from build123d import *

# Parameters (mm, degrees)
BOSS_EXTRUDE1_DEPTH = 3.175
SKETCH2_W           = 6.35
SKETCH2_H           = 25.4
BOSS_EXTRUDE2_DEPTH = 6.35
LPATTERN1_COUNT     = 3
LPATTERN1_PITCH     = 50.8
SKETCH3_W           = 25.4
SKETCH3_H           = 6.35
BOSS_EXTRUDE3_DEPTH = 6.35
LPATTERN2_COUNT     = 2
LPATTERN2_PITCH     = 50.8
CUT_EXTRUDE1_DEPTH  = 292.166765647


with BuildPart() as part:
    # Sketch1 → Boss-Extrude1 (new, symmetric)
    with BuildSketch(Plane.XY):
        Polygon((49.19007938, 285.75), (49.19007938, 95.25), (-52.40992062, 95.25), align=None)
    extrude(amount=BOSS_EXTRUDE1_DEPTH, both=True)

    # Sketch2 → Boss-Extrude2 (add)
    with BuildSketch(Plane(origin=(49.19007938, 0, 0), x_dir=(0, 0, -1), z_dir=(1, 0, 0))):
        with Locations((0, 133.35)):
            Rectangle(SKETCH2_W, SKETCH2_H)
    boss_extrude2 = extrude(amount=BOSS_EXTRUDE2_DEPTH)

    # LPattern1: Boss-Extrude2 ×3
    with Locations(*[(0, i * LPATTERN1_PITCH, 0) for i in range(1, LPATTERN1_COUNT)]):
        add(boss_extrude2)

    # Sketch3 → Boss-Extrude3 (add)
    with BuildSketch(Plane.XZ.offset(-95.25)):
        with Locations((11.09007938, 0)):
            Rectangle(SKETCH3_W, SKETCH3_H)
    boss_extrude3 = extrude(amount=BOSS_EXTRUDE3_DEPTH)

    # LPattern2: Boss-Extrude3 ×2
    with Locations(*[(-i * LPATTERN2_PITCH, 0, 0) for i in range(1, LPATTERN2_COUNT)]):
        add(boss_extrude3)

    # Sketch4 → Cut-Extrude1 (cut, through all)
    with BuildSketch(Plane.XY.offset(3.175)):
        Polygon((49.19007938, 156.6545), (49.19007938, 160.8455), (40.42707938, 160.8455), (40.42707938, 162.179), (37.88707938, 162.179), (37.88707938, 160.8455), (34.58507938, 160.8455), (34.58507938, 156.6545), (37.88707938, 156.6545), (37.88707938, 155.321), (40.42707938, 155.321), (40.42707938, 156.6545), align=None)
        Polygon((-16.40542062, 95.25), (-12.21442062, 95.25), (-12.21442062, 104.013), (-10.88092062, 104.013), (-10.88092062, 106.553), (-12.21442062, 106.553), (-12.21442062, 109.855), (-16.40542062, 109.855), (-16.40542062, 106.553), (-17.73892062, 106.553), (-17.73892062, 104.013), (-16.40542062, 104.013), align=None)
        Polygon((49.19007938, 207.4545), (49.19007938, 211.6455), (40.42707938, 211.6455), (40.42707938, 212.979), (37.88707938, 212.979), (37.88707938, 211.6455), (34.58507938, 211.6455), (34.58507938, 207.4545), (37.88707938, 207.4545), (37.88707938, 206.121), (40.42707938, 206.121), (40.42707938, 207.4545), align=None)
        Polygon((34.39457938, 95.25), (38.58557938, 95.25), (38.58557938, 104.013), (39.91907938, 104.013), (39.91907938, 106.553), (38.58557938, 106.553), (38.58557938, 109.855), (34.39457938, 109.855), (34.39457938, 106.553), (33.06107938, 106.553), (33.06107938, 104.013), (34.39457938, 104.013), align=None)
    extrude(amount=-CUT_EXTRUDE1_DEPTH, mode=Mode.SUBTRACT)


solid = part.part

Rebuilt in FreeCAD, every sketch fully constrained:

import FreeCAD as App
import Part
import Sketcher
from FreeCAD import Vector
Q = App.Units.Quantity


def add_polygon(sketch, points):
    """Adds a closed chain of lines whose ends are joined by coincident constraints."""
    first, n = sketch.GeometryCount, len(points)
    for a, b in zip(points, points[1:] + points[:1]):
        sketch.addGeometry(Part.LineSegment(App.Vector(*a, 0), App.Vector(*b, 0)), False)
    for i in range(n):
        sketch.addConstraint(Sketcher.Constraint("Coincident", first + i, 2, first + (i + 1) % n, 1))

doc = App.newDocument("Part")
body = doc.addObject("PartDesign::Body", "Body")

# Sketch on XY plane
sketch1 = doc.addObject("Sketcher::SketchObject", "Sketch")
body.addObject(sketch1)
sketch1.AttachmentSupport = (doc.XY_Plane, [""])
sketch1.MapMode = "FlatFace"
add_polygon(sketch1, [(49, 95), (49, 286), (-52, 95)])  # lines 0-2
sketch1.addConstraint(Sketcher.Constraint("Vertical", 0))
sketch1.addConstraint(Sketcher.Constraint("Horizontal", 2))
sketch1.addConstraint(Sketcher.Constraint("DistanceX", 2, 1, 2, 2, Q("4 in")))
sketch1.addConstraint(Sketcher.Constraint("DistanceY", 0, 1, 0, 2, Q("7.5 in")))
sketch1.addConstraint(Sketcher.Constraint("DistanceY", -1, 1, 0, 2, Q("11.25 in")))
sketch1.addConstraint(Sketcher.Constraint("DistanceX", -1, 1, 0, 2, Q("49.190079 mm")))
pad1 = doc.addObject("PartDesign::Pad", "Pad")
body.addObject(pad1)
pad1.Profile = sketch1
pad1.Length = Q("0.25 in")
pad1.Midplane = True

# Sketch on YZ plane
sketch2 = doc.addObject("Sketcher::SketchObject", "Sketch001")
body.addObject(sketch2)
sketch2.AttachmentSupport = (doc.YZ_Plane, [""])
sketch2.MapMode = "FlatFace"
sketch2.AttachmentOffset = App.Placement(Vector(0, 0, 49.190079), App.Rotation())
add_polygon(sketch2, [(146, 3), (121, 3), (121, -3), (146, -3)])  # lines 0-3
sketch2.addConstraint(Sketcher.Constraint("Horizontal", 0))
sketch2.addConstraint(Sketcher.Constraint("Vertical", 1))
sketch2.addConstraint(Sketcher.Constraint("Horizontal", 2))
sketch2.addConstraint(Sketcher.Constraint("Vertical", 3))
sketch2.addConstraint(Sketcher.Constraint("DistanceX", 0, 2, 0, 1, Q("1 in")))
sketch2.addConstraint(Sketcher.Constraint("DistanceY", 1, 2, 1, 1, Q("0.25 in")))
sketch2.addConstraint(Sketcher.Constraint("DistanceX", -1, 1, 0, 2, Q("4.75 in")))
sketch2.addConstraint(Sketcher.Constraint("DistanceY", -1, 1, 0, 2, Q("0.125 in")))
pad2 = doc.addObject("PartDesign::Pad", "Pad001")
body.addObject(pad2)
pad2.Profile = sketch2
pad2.Length = Q("0.25 in")
doc.recompute()

linearpattern = doc.addObject("PartDesign::LinearPattern", "LinearPattern")
body.addObject(linearpattern)
linearpattern.Originals = [pad2]
linearpattern.Direction = (doc.Y_Axis, [""])
linearpattern.Mode = "offset"
linearpattern.Offset = Q("2 in")
linearpattern.Occurrences = 3
body.Tip = linearpattern

# Sketch on XZ plane
sketch3 = doc.addObject("Sketcher::SketchObject", "Sketch002")
body.addObject(sketch3)
sketch3.AttachmentSupport = (doc.XZ_Plane, [""])
sketch3.MapMode = "FlatFace"
sketch3.AttachmentOffset = App.Placement(Vector(0, 0, -3.75 * 25.4), App.Rotation())
add_polygon(sketch3, [(-2, 3), (-2, -3), (24, -3), (24, 3)])  # lines 0-3
sketch3.addConstraint(Sketcher.Constraint("Vertical", 0))
sketch3.addConstraint(Sketcher.Constraint("Horizontal", 1))
sketch3.addConstraint(Sketcher.Constraint("Vertical", 2))
sketch3.addConstraint(Sketcher.Constraint("Horizontal", 3))
sketch3.addConstraint(Sketcher.Constraint("DistanceX", 1, 1, 1, 2, Q("1 in")))
sketch3.addConstraint(Sketcher.Constraint("DistanceY", 0, 2, 0, 1, Q("0.25 in")))
sketch3.addConstraint(Sketcher.Constraint("DistanceY", 0, 2, -1, 1, Q("0.125 in")))
sketch3.addConstraint(Sketcher.Constraint("DistanceX", 0, 2, -1, 1, Q("1.609921 mm")))
pad3 = doc.addObject("PartDesign::Pad", "Pad002")
body.addObject(pad3)
pad3.Profile = sketch3
pad3.Length = Q("0.25 in")
doc.recompute()

linearpattern2 = doc.addObject("PartDesign::LinearPattern", "LinearPattern001")
body.addObject(linearpattern2)
linearpattern2.Originals = [pad3]
linearpattern2.Direction = (doc.X_Axis, [""])
linearpattern2.Mode = "offset"
linearpattern2.Offset = Q("2 in")
linearpattern2.Occurrences = 2
linearpattern2.Reversed = True
body.Tip = linearpattern2

# Sketch on XY plane
sketch4 = doc.addObject("Sketcher::SketchObject", "Sketch003")
body.addObject(sketch4)
sketch4.AttachmentSupport = (doc.XY_Plane, [""])
sketch4.MapMode = "FlatFace"
sketch4.AttachmentOffset = App.Placement(Vector(0, 0, 0.125 * 25.4), App.Rotation())
add_polygon(sketch4, [(49.2, 156.7), (49.2, 160.8), (40.4, 160.8), (40.4, 162.2), (37.9, 162.2), (37.9, 160.8), (34.6, 160.8), (34.6, 156.7), (37.9, 156.7), (37.9, 155.3), (40.4, 155.3), (40.4, 156.7)])  # lines 0-11
add_polygon(sketch4, [(-16.4, 95.2), (-12.2, 95.2), (-12.2, 104), (-10.9, 104), (-10.9, 106.6), (-12.2, 106.6), (-12.2, 109.9), (-16.4, 109.9), (-16.4, 106.6), (-17.7, 106.6), (-17.7, 104), (-16.4, 104)])  # lines 12-23
add_polygon(sketch4, [(49.2, 207.5), (49.2, 211.6), (40.4, 211.6), (40.4, 213), (37.9, 213), (37.9, 211.6), (34.6, 211.6), (34.6, 207.5), (37.9, 207.5), (37.9, 206.1), (40.4, 206.1), (40.4, 207.5)])  # lines 24-35
add_polygon(sketch4, [(34.4, 95.2), (38.6, 95.2), (38.6, 104), (39.9, 104), (39.9, 106.6), (38.6, 106.6), (38.6, 109.9), (34.4, 109.9), (34.4, 106.6), (33.1, 106.6), (33.1, 104), (34.4, 104)])  # lines 36-47
sketch4.addConstraint(Sketcher.Constraint("Vertical", 0))
sketch4.addConstraint(Sketcher.Constraint("Horizontal", 1))
sketch4.addConstraint(Sketcher.Constraint("Vertical", 2))
sketch4.addConstraint(Sketcher.Constraint("Horizontal", 3))
sketch4.addConstraint(Sketcher.Constraint("Vertical", 4))
sketch4.addConstraint(Sketcher.Constraint("Horizontal", 5))
sketch4.addConstraint(Sketcher.Constraint("Vertical", 6))
sketch4.addConstraint(Sketcher.Constraint("Horizontal", 7))
sketch4.addConstraint(Sketcher.Constraint("Vertical", 8))
sketch4.addConstraint(Sketcher.Constraint("Horizontal", 9))
sketch4.addConstraint(Sketcher.Constraint("Vertical", 10))
sketch4.addConstraint(Sketcher.Constraint("Horizontal", 11))
sketch4.addConstraint(Sketcher.Constraint("Horizontal", 12))
sketch4.addConstraint(Sketcher.Constraint("Vertical", 13))
sketch4.addConstraint(Sketcher.Constraint("Horizontal", 14))
sketch4.addConstraint(Sketcher.Constraint("Vertical", 15))
sketch4.addConstraint(Sketcher.Constraint("Horizontal", 16))
sketch4.addConstraint(Sketcher.Constraint("Vertical", 17))
sketch4.addConstraint(Sketcher.Constraint("Horizontal", 18))
sketch4.addConstraint(Sketcher.Constraint("Vertical", 19))
sketch4.addConstraint(Sketcher.Constraint("Horizontal", 20))
sketch4.addConstraint(Sketcher.Constraint("Vertical", 21))
sketch4.addConstraint(Sketcher.Constraint("Horizontal", 22))
sketch4.addConstraint(Sketcher.Constraint("Vertical", 23))
sketch4.addConstraint(Sketcher.Constraint("Vertical", 24))
sketch4.addConstraint(Sketcher.Constraint("Horizontal", 25))
sketch4.addConstraint(Sketcher.Constraint("Vertical", 26))
sketch4.addConstraint(Sketcher.Constraint("Horizontal", 27))
sketch4.addConstraint(Sketcher.Constraint("Vertical", 28))
sketch4.addConstraint(Sketcher.Constraint("Horizontal", 29))
sketch4.addConstraint(Sketcher.Constraint("Vertical", 30))
sketch4.addConstraint(Sketcher.Constraint("Horizontal", 31))
sketch4.addConstraint(Sketcher.Constraint("Vertical", 32))
sketch4.addConstraint(Sketcher.Constraint("Horizontal", 33))
sketch4.addConstraint(Sketcher.Constraint("Vertical", 34))
sketch4.addConstraint(Sketcher.Constraint("Horizontal", 35))
sketch4.addConstraint(Sketcher.Constraint("Horizontal", 36))
sketch4.addConstraint(Sketcher.Constraint("Vertical", 37))
sketch4.addConstraint(Sketcher.Constraint("Horizontal", 38))
sketch4.addConstraint(Sketcher.Constraint("Vertical", 39))
sketch4.addConstraint(Sketcher.Constraint("Horizontal", 40))
sketch4.addConstraint(Sketcher.Constraint("Vertical", 41))
sketch4.addConstraint(Sketcher.Constraint("Horizontal", 42))
sketch4.addConstraint(Sketcher.Constraint("Vertical", 43))
sketch4.addConstraint(Sketcher.Constraint("Horizontal", 44))
sketch4.addConstraint(Sketcher.Constraint("Vertical", 45))
sketch4.addConstraint(Sketcher.Constraint("Horizontal", 46))
sketch4.addConstraint(Sketcher.Constraint("Vertical", 47))
sketch4.addConstraint(Sketcher.Constraint("Horizontal", 1, 2, 4, 2))
sketch4.addConstraint(Sketcher.Constraint("Horizontal", 7, 2, 10, 2))
sketch4.addConstraint(Sketcher.Constraint("Horizontal", 16, 2, 19, 2))
sketch4.addConstraint(Sketcher.Constraint("Horizontal", 14, 2, 21, 2))
sketch4.addConstraint(Sketcher.Constraint("Horizontal", 25, 2, 28, 2))
sketch4.addConstraint(Sketcher.Constraint("Horizontal", 31, 2, 34, 2))
sketch4.addConstraint(Sketcher.Constraint("Horizontal", 23, 2, 36, 2))
sketch4.addConstraint(Sketcher.Constraint("Horizontal", 22, 2, 37, 2))
sketch4.addConstraint(Sketcher.Constraint("Horizontal", 20, 2, 39, 2))
sketch4.addConstraint(Sketcher.Constraint("Horizontal", 18, 2, 41, 2))
sketch4.addConstraint(Sketcher.Constraint("Horizontal", 40, 2, 43, 2))
sketch4.addConstraint(Sketcher.Constraint("Horizontal", 38, 2, 45, 2))
sketch4.addConstraint(Sketcher.Constraint("Vertical", 4, 2, 7, 2))
sketch4.addConstraint(Sketcher.Constraint("Vertical", 2, 2, 9, 2))
sketch4.addConstraint(Sketcher.Constraint("Vertical", 13, 2, 16, 2))
sketch4.addConstraint(Sketcher.Constraint("Vertical", 19, 2, 22, 2))
sketch4.addConstraint(Sketcher.Constraint("Vertical", 11, 2, 24, 2))
sketch4.addConstraint(Sketcher.Constraint("Vertical", 10, 2, 25, 2))
sketch4.addConstraint(Sketcher.Constraint("Vertical", 8, 2, 27, 2))
sketch4.addConstraint(Sketcher.Constraint("Vertical", 6, 2, 29, 2))
sketch4.addConstraint(Sketcher.Constraint("Vertical", 28, 2, 31, 2))
sketch4.addConstraint(Sketcher.Constraint("Vertical", 26, 2, 33, 2))
sketch4.addConstraint(Sketcher.Constraint("Vertical", 37, 2, 40, 2))
sketch4.addConstraint(Sketcher.Constraint("Vertical", 43, 2, 46, 2))
sketch4.addConstraint(Sketcher.Constraint("Equal", 16, 20))
sketch4.addConstraint(Sketcher.Constraint("Equal", 18, 36))
sketch4.addConstraint(Sketcher.Constraint("Equal", 22, 38))
sketch4.addConstraint(Sketcher.Constraint("Equal", 40, 44))
sketch4.addConstraint(Sketcher.Constraint("Equal", 42, 0))
sketch4.addConstraint(Sketcher.Constraint("Equal", 46, 2))
sketch4.addConstraint(Sketcher.Constraint("Equal", 4, 8))
sketch4.addConstraint(Sketcher.Constraint("Equal", 35, 13))
sketch4.addConstraint(Sketcher.Constraint("Equal", 33, 15))
sketch4.addConstraint(Sketcher.Constraint("Equal", 31, 17))
sketch4.addConstraint(Sketcher.Constraint("Equal", 6, 24))
sketch4.addConstraint(Sketcher.Constraint("Equal", 10, 26))
sketch4.addConstraint(Sketcher.Constraint("Equal", 28, 32))
sketch4.addConstraint(Sketcher.Constraint("DistanceX", 3, 2, 3, 1, Q("0.1 in")))
sketch4.addConstraint(Sketcher.Constraint("DistanceY", 0, 2, 24, 2, Q("2 in")))
sketch4.addConstraint(Sketcher.Constraint("DistanceX", 12, 2, 36, 2, Q("2 in")))
sketch4.addConstraint(Sketcher.Constraint("DistanceX", 5, 2, 5, 1, Q("0.13 in")))
sketch4.addConstraint(Sketcher.Constraint("DistanceX", 1, 2, 1, 1, Q("0.345 in")))
sketch4.addConstraint(Sketcher.Constraint("DistanceX", 12, 1, 12, 2, Q("0.165 in")))
sketch4.addConstraint(Sketcher.Constraint("DistanceY", -1, 1, 12, 2, Q("3.75 in")))
sketch4.addConstraint(Sketcher.Constraint("DistanceY", 13, 2, 8, 2, Q("2.02 in")))
sketch4.addConstraint(Sketcher.Constraint("DistanceX", 14, 2, 6, 2, Q("1.79 in")))
sketch4.addConstraint(Sketcher.Constraint("DistanceX", 14, 1, 14, 2, Q("0.0525 in")))
sketch4.addConstraint(Sketcher.Constraint("DistanceX", -1, 1, 0, 2, Q("49.190079 mm")))
pocket1 = doc.addObject("PartDesign::Pocket", "Pocket")
body.addObject(pocket1)
pocket1.Profile = sketch4
pocket1.Type = "ThroughAll"

doc.recompute()
